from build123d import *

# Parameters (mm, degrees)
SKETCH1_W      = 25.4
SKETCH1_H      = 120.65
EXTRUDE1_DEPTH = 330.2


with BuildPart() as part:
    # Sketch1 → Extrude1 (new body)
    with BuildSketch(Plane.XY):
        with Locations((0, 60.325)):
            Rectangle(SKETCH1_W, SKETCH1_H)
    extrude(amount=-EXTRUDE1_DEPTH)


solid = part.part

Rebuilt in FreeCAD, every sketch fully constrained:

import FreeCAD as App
import Part
import Sketcher
Q = App.Units.Quantity


def add_polygon(sketch, points):
    """Adds a closed chain of lines whose ends are joined by coincident constraints."""
    first, n = sketch.GeometryCount, len(points)
    for a, b in zip(points, points[1:] + points[:1]):
        sketch.addGeometry(Part.LineSegment(App.Vector(*a, 0), App.Vector(*b, 0)), False)
    for i in range(n):
        sketch.addConstraint(Sketcher.Constraint("Coincident", first + i, 2, first + (i + 1) % n, 1))

doc = App.newDocument("Part")
body = doc.addObject("PartDesign::Body", "Body")

# Sketch on XY plane
sketch1 = doc.addObject("Sketcher::SketchObject", "Sketch")
body.addObject(sketch1)
sketch1.AttachmentSupport = (doc.XY_Plane, [""])
sketch1.MapMode = "FlatFace"
add_polygon(sketch1, [(-12.7, 120.65), (-12.7, 0), (12.7, 0), (12.7, 120.65)])  # lines 0-3
sketch1.addConstraint(Sketcher.Constraint("Vertical", 0))
sketch1.addConstraint(Sketcher.Constraint("Horizontal", 1))
sketch1.addConstraint(Sketcher.Constraint("Vertical", 2))
sketch1.addConstraint(Sketcher.Constraint("Horizontal", 3))
sketch1.addConstraint(Sketcher.Constraint("Symmetric", 0, 2, 1, 2, -1, 1))
sketch1.addConstraint(Sketcher.Constraint("DistanceX", 1, 1, 1, 2, Q("1 in")))
sketch1.addConstraint(Sketcher.Constraint("DistanceY", 0, 2, 0, 1, Q("4.75 in")))
pad1 = doc.addObject("PartDesign::Pad", "Pad")
body.addObject(pad1)
pad1.Profile = sketch1
pad1.Length = Q("13 in")
pad1.Reversed = True

doc.recompute()
